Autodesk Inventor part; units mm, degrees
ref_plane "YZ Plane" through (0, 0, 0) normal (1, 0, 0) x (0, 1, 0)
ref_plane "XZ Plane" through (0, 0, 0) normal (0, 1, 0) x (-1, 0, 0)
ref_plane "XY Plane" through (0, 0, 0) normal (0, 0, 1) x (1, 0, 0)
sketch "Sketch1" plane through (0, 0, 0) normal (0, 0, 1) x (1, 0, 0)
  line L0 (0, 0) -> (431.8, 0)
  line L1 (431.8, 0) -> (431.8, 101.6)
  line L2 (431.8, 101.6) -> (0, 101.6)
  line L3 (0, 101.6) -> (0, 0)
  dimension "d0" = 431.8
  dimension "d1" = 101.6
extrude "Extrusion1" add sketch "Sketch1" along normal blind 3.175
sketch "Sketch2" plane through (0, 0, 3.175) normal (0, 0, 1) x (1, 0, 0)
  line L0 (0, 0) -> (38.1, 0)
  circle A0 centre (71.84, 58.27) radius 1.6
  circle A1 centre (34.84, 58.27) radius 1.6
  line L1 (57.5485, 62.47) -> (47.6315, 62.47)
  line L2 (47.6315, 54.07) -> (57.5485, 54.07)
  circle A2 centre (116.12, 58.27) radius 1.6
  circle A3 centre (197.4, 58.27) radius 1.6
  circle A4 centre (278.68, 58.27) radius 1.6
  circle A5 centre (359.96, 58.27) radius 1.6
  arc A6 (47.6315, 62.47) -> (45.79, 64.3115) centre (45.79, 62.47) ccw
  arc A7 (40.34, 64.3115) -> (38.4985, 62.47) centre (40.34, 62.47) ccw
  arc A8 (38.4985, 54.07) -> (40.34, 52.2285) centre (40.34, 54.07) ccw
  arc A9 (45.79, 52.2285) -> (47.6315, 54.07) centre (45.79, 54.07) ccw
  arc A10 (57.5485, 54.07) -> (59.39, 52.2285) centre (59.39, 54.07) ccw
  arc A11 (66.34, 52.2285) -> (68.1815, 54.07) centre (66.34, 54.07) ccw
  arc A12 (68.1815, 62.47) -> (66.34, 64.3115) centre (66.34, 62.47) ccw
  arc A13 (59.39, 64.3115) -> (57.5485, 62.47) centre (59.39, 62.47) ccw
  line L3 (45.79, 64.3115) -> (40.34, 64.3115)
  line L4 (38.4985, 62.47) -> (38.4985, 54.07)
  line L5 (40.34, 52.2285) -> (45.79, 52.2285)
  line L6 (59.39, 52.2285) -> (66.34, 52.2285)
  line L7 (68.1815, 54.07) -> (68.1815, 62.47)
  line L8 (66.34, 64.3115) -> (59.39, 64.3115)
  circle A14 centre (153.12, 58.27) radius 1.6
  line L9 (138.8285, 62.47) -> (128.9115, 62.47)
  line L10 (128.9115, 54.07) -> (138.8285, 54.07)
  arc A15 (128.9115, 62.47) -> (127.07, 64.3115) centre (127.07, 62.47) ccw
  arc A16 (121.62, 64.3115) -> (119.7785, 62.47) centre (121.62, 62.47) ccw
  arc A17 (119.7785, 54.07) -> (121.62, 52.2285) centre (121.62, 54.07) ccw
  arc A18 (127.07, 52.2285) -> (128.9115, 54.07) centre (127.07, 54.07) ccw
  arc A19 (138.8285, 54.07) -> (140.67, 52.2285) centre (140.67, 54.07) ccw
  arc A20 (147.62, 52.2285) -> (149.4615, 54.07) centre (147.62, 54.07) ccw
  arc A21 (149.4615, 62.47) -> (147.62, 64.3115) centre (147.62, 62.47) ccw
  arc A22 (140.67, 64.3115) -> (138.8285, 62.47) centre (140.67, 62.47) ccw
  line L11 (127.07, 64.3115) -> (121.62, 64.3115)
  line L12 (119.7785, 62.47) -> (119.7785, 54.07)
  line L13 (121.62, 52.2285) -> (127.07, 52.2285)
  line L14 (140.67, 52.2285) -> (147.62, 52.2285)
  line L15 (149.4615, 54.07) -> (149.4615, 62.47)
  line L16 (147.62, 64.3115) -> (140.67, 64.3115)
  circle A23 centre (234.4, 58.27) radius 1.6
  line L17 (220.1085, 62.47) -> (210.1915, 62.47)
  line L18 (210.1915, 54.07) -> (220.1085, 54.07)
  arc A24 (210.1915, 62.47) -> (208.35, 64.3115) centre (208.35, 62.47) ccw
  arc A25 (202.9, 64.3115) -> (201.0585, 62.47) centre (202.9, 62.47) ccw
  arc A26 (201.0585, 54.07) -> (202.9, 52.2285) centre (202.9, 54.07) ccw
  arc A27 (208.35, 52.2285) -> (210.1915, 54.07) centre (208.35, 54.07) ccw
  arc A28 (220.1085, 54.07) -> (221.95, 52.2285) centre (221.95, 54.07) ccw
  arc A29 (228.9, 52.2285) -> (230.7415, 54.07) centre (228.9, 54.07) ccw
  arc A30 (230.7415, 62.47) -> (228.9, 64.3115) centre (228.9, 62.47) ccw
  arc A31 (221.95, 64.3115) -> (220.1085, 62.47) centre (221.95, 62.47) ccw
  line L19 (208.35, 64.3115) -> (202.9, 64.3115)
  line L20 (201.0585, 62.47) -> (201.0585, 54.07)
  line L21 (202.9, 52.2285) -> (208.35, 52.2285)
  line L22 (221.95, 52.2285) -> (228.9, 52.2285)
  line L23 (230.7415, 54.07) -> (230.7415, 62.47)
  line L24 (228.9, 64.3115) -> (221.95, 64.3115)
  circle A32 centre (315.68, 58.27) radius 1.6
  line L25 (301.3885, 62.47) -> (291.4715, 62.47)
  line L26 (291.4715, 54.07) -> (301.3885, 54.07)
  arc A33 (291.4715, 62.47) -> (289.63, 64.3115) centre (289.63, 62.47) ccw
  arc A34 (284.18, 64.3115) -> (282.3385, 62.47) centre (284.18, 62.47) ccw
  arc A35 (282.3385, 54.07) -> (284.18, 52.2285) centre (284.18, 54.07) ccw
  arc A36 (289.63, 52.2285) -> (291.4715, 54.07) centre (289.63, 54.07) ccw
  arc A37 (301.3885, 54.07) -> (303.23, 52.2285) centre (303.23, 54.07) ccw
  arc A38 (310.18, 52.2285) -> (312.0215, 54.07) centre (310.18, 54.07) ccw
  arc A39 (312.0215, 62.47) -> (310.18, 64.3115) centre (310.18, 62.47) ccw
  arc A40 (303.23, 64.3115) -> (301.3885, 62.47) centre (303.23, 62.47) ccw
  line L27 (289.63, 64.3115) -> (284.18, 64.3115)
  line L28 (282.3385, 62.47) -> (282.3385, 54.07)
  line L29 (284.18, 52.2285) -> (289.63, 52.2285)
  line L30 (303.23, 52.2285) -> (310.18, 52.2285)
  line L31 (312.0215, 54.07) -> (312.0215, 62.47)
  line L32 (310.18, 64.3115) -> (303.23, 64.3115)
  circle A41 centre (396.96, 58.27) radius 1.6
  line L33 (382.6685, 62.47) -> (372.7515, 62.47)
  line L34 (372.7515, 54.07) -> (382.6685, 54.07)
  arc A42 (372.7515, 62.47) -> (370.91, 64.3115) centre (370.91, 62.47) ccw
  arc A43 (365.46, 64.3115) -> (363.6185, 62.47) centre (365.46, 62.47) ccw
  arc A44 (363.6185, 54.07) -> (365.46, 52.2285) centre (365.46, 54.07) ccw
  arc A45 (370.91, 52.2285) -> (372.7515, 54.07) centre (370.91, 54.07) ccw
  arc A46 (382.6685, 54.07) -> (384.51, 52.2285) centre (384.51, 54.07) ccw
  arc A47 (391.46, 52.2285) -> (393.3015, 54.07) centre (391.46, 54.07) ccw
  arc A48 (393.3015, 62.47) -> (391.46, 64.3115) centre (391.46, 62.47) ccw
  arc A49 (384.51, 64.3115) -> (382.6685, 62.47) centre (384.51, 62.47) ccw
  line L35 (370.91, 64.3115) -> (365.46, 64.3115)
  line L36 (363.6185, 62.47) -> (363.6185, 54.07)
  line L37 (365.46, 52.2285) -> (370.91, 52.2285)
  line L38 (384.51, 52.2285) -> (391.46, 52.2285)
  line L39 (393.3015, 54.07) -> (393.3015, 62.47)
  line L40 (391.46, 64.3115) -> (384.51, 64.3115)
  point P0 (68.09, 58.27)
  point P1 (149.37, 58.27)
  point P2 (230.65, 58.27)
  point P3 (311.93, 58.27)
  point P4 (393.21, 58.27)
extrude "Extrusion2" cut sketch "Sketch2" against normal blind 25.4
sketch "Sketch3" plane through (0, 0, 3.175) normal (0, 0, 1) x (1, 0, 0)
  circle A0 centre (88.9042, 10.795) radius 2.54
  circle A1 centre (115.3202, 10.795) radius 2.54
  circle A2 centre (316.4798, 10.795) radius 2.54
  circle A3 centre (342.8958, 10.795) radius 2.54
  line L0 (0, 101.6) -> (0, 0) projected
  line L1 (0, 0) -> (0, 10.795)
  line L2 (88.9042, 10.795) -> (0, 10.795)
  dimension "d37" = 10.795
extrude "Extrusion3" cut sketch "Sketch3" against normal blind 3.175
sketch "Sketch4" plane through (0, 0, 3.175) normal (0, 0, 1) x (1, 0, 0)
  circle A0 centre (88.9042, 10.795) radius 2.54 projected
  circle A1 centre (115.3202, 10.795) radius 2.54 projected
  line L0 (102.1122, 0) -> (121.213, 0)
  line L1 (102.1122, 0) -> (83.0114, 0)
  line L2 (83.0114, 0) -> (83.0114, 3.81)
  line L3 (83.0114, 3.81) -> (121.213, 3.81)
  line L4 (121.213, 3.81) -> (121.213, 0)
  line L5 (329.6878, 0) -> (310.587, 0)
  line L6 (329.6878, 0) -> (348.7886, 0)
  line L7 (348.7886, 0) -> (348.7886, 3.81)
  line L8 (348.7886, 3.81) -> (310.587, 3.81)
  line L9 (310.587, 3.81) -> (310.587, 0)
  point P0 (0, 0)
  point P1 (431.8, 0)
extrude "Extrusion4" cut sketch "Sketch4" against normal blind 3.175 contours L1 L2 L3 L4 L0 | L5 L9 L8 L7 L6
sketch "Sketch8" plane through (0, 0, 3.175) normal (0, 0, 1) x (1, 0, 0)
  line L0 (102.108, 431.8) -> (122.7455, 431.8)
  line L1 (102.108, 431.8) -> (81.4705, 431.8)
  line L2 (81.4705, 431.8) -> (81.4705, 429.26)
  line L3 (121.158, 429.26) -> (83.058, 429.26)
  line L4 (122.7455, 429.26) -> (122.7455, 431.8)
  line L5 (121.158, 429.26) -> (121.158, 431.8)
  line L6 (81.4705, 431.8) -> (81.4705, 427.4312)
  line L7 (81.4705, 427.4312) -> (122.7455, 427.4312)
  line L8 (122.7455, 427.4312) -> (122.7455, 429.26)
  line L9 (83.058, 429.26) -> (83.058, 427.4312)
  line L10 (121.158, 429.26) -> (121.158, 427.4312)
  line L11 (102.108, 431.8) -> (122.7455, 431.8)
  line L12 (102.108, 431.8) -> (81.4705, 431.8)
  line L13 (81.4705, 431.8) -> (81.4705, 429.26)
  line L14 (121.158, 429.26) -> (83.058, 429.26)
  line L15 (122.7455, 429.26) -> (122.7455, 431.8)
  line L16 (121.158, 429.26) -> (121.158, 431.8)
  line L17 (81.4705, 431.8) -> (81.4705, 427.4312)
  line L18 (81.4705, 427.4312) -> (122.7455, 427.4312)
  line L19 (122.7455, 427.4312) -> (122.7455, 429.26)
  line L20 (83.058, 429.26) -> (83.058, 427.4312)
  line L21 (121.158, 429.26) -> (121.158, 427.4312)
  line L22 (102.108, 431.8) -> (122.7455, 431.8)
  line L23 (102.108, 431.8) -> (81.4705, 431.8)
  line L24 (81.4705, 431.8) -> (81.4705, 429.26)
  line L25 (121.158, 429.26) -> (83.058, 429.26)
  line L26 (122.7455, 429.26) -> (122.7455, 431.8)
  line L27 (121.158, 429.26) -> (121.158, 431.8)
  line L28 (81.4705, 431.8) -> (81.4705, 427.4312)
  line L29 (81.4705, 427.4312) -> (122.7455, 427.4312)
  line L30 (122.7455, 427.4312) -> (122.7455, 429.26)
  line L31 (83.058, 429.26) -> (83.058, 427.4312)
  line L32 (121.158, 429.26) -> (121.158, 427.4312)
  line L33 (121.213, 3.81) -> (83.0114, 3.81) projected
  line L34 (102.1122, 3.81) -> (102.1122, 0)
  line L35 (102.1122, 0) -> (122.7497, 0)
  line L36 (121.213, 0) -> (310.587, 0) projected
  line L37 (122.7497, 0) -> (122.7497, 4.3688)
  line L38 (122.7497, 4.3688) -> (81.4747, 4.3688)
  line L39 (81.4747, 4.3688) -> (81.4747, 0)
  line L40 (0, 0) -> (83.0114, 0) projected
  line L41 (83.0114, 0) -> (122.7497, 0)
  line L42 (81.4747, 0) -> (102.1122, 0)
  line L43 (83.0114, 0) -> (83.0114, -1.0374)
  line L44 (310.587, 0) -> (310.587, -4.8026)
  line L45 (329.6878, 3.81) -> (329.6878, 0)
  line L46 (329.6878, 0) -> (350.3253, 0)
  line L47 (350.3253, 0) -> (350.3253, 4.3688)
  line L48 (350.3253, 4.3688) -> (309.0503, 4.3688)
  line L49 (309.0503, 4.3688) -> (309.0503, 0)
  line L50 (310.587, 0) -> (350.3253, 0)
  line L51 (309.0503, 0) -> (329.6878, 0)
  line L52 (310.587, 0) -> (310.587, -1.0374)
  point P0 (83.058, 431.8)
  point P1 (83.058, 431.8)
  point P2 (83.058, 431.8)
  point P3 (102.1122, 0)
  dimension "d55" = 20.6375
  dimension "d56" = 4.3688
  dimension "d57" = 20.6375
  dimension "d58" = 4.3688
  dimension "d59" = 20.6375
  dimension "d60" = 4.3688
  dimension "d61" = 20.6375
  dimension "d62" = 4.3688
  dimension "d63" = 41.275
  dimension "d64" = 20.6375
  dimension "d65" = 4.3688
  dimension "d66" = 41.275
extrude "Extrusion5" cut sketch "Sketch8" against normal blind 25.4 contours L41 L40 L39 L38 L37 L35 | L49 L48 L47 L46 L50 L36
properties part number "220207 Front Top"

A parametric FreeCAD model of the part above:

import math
import FreeCAD as App
import Part
import Sketcher
from FreeCAD import Vector
Q = App.Units.Quantity

doc = App.newDocument("Part")
body = doc.addObject("PartDesign::Body", "Body")

# Sketch on XY plane
sketch1 = body.newObject("Sketcher::SketchObject", "Sketch")
sketch1.AttachmentSupport = (doc.getObject("XY_Plane"), [""])
sketch1.MapMode = "FlatFace"
sketch1.addGeometry([
    Part.LineSegment(Vector(0, 102, 0), Vector(0, 0, 0)),
    Part.LineSegment(Vector(0, 0, 0), Vector(432, 0, 0)),
    Part.LineSegment(Vector(432, 0, 0), Vector(432, 102, 0)),
    Part.LineSegment(Vector(432, 102, 0), Vector(0, 102, 0)),
], False)
sketch1.addConstraint([
    Sketcher.Constraint("Coincident", 0, 2, 1, 1),
    Sketcher.Constraint("Coincident", 1, 2, 2, 1),
    Sketcher.Constraint("Coincident", 2, 2, 3, 1),
    Sketcher.Constraint("Coincident", 3, 2, 0, 1),
    Sketcher.Constraint("Vertical", 0),
    Sketcher.Constraint("Horizontal", 1),
    Sketcher.Constraint("Vertical", 2),
    Sketcher.Constraint("Horizontal", 3),
    Sketcher.Constraint("Coincident", 0, 2, -1, 1),
    Sketcher.Constraint("DistanceX", 1, 1, 1, 2, Q("17 in")),
    Sketcher.Constraint("DistanceY", 0, 2, 0, 1, Q("4 in")),
])
pad1 = body.newObject("PartDesign::Pad", "Pad")
pad1.Profile = sketch1
pad1.Length = Q("0.125 in")

# Sketch on XY plane
sketch2 = body.newObject("Sketcher::SketchObject", "Sketch001")
sketch2.AttachmentSupport = (doc.getObject("XY_Plane"), [""])
sketch2.MapMode = "FlatFace"
sketch2.AttachmentOffset = App.Placement(Vector(0, 0, 0.125 * 25.4), App.Rotation())
sketch2.addGeometry([
    Part.Circle(Vector(71.8, 58.3, 0), Vector(0, 0, 1), 1.6),  # 0
    Part.Circle(Vector(34.8, 58.3, 0), Vector(0, 0, 1), 1.6),  # 1
    Part.ArcOfCircle(Part.Circle(Vector(59.4, 62.5, 0), Vector(0, 0, 1), 1.8), math.radians(90), math.radians(180)),  # 2
    Part.LineSegment(Vector(57.5, 62.5, 0), Vector(47.6, 62.5, 0)),  # 3
    Part.ArcOfCircle(Part.Circle(Vector(45.8, 62.5, 0), Vector(0, 0, 1), 1.8), math.radians(0), math.radians(90)),  # 4
    Part.LineSegment(Vector(45.8, 64.3, 0), Vector(40.3, 64.3, 0)),  # 5
    Part.ArcOfCircle(Part.Circle(Vector(40.3, 62.5, 0), Vector(0, 0, 1), 1.8), math.radians(90), math.radians(180)),  # 6
    Part.LineSegment(Vector(38.5, 62.5, 0), Vector(38.5, 54.1, 0)),  # 7
    Part.ArcOfCircle(Part.Circle(Vector(40.3, 54.1, 0), Vector(0, 0, 1), 1.8), math.radians(180), math.radians(270)),  # 8
    Part.LineSegment(Vector(40.3, 52.2, 0), Vector(45.8, 52.2, 0)),  # 9
    Part.ArcOfCircle(Part.Circle(Vector(45.8, 54.1, 0), Vector(0, 0, 1), 1.8), math.radians(-90), math.radians(0)),  # 10
    Part.LineSegment(Vector(47.6, 54.1, 0), Vector(57.5, 54.1, 0)),  # 11
    Part.ArcOfCircle(Part.Circle(Vector(59.4, 54.1, 0), Vector(0, 0, 1), 1.8), math.radians(180), math.radians(270)),  # 12
    Part.LineSegment(Vector(59.4, 52.2, 0), Vector(66.3, 52.2, 0)),  # 13
    Part.ArcOfCircle(Part.Circle(Vector(66.3, 54.1, 0), Vector(0, 0, 1), 1.8), math.radians(-90), math.radians(0)),  # 14
    Part.LineSegment(Vector(68.2, 54.1, 0), Vector(68.2, 62.5, 0)),  # 15
    Part.ArcOfCircle(Part.Circle(Vector(66.3, 62.5, 0), Vector(0, 0, 1), 1.8), math.radians(0), math.radians(90)),  # 16
    Part.LineSegment(Vector(66.3, 64.3, 0), Vector(59.4, 64.3, 0)),  # 17
    Part.Circle(Vector(116.1, 58.3, 0), Vector(0, 0, 1), 1.6),  # 18
    Part.Circle(Vector(197.4, 58.3, 0), Vector(0, 0, 1), 1.6),  # 19
    Part.Circle(Vector(278.7, 58.3, 0), Vector(0, 0, 1), 1.6),  # 20
    Part.Circle(Vector(360, 58.3, 0), Vector(0, 0, 1), 1.6),  # 21
    Part.Circle(Vector(153.1, 58.3, 0), Vector(0, 0, 1), 1.6),  # 22
    Part.ArcOfCircle(Part.Circle(Vector(140.7, 62.5, 0), Vector(0, 0, 1), 1.8), math.radians(90), math.radians(180)),  # 23
    Part.LineSegment(Vector(138.8, 62.5, 0), Vector(128.9, 62.5, 0)),  # 24
    Part.ArcOfCircle(Part.Circle(Vector(127.1, 62.5, 0), Vector(0, 0, 1), 1.8), math.radians(0), math.radians(90)),  # 25
    Part.LineSegment(Vector(127.1, 64.3, 0), Vector(121.6, 64.3, 0)),  # 26
    Part.ArcOfCircle(Part.Circle(Vector(121.6, 62.5, 0), Vector(0, 0, 1), 1.8), math.radians(90), math.radians(180)),  # 27
    Part.LineSegment(Vector(119.8, 62.5, 0), Vector(119.8, 54.1, 0)),  # 28
    Part.ArcOfCircle(Part.Circle(Vector(121.6, 54.1, 0), Vector(0, 0, 1), 1.8), math.radians(180), math.radians(270)),  # 29
    Part.LineSegment(Vector(121.6, 52.2, 0), Vector(127.1, 52.2, 0)),  # 30
    Part.ArcOfCircle(Part.Circle(Vector(127.1, 54.1, 0), Vector(0, 0, 1), 1.8), math.radians(-90), math.radians(0)),  # 31
    Part.LineSegment(Vector(128.9, 54.1, 0), Vector(138.8, 54.1, 0)),  # 32
    Part.ArcOfCircle(Part.Circle(Vector(140.7, 54.1, 0), Vector(0, 0, 1), 1.8), math.radians(180), math.radians(270)),  # 33
    Part.LineSegment(Vector(140.7, 52.2, 0), Vector(147.6, 52.2, 0)),  # 34
    Part.ArcOfCircle(Part.Circle(Vector(147.6, 54.1, 0), Vector(0, 0, 1), 1.8), math.radians(-90), math.radians(0)),  # 35
    Part.LineSegment(Vector(149.5, 54.1, 0), Vector(149.5, 62.5, 0)),  # 36
    Part.ArcOfCircle(Part.Circle(Vector(147.6, 62.5, 0), Vector(0, 0, 1), 1.8), math.radians(0), math.radians(90)),  # 37
    Part.LineSegment(Vector(147.6, 64.3, 0), Vector(140.7, 64.3, 0)),  # 38
    Part.Circle(Vector(234.4, 58.3, 0), Vector(0, 0, 1), 1.6),  # 39
    Part.ArcOfCircle(Part.Circle(Vector(221.9, 62.5, 0), Vector(0, 0, 1), 1.8), math.radians(90), math.radians(180)),  # 40
    Part.LineSegment(Vector(220.1, 62.5, 0), Vector(210.2, 62.5, 0)),  # 41
    Part.ArcOfCircle(Part.Circle(Vector(208.3, 62.5, 0), Vector(0, 0, 1), 1.8), math.radians(0), math.radians(90)),  # 42
    Part.LineSegment(Vector(208.3, 64.3, 0), Vector(202.9, 64.3, 0)),  # 43
    Part.ArcOfCircle(Part.Circle(Vector(202.9, 62.5, 0), Vector(0, 0, 1), 1.8), math.radians(90), math.radians(180)),  # 44
    Part.LineSegment(Vector(201.1, 62.5, 0), Vector(201.1, 54.1, 0)),  # 45
    Part.ArcOfCircle(Part.Circle(Vector(202.9, 54.1, 0), Vector(0, 0, 1), 1.8), math.radians(180), math.radians(270)),  # 46
    Part.LineSegment(Vector(202.9, 52.2, 0), Vector(208.3, 52.2, 0)),  # 47
    Part.ArcOfCircle(Part.Circle(Vector(208.3, 54.1, 0), Vector(0, 0, 1), 1.8), math.radians(-90), math.radians(0)),  # 48
    Part.LineSegment(Vector(210.2, 54.1, 0), Vector(220.1, 54.1, 0)),  # 49
    Part.ArcOfCircle(Part.Circle(Vector(221.9, 54.1, 0), Vector(0, 0, 1), 1.8), math.radians(180), math.radians(270)),  # 50
    Part.LineSegment(Vector(221.9, 52.2, 0), Vector(228.9, 52.2, 0)),  # 51
    Part.ArcOfCircle(Part.Circle(Vector(228.9, 54.1, 0), Vector(0, 0, 1), 1.8), math.radians(-90), math.radians(0)),  # 52
    Part.LineSegment(Vector(230.7, 54.1, 0), Vector(230.7, 62.5, 0)),  # 53
    Part.ArcOfCircle(Part.Circle(Vector(228.9, 62.5, 0), Vector(0, 0, 1), 1.8), math.radians(0), math.radians(90)),  # 54
    Part.LineSegment(Vector(228.9, 64.3, 0), Vector(221.9, 64.3, 0)),  # 55
    Part.Circle(Vector(315.7, 58.3, 0), Vector(0, 0, 1), 1.6),  # 56
    Part.ArcOfCircle(Part.Circle(Vector(303.2, 62.5, 0), Vector(0, 0, 1), 1.8), math.radians(90), math.radians(180)),  # 57
    Part.LineSegment(Vector(301.4, 62.5, 0), Vector(291.5, 62.5, 0)),  # 58
    Part.ArcOfCircle(Part.Circle(Vector(289.6, 62.5, 0), Vector(0, 0, 1), 1.8), math.radians(0), math.radians(90)),  # 59
    Part.LineSegment(Vector(289.6, 64.3, 0), Vector(284.2, 64.3, 0)),  # 60
    Part.ArcOfCircle(Part.Circle(Vector(284.2, 62.5, 0), Vector(0, 0, 1), 1.8), math.radians(90), math.radians(180)),  # 61
    Part.LineSegment(Vector(282.3, 62.5, 0), Vector(282.3, 54.1, 0)),  # 62
    Part.ArcOfCircle(Part.Circle(Vector(284.2, 54.1, 0), Vector(0, 0, 1), 1.8), math.radians(180), math.radians(270)),  # 63
    Part.LineSegment(Vector(284.2, 52.2, 0), Vector(289.6, 52.2, 0)),  # 64
    Part.ArcOfCircle(Part.Circle(Vector(289.6, 54.1, 0), Vector(0, 0, 1), 1.8), math.radians(-90), math.radians(0)),  # 65
    Part.LineSegment(Vector(291.5, 54.1, 0), Vector(301.4, 54.1, 0)),  # 66
    Part.ArcOfCircle(Part.Circle(Vector(303.2, 54.1, 0), Vector(0, 0, 1), 1.8), math.radians(180), math.radians(270)),  # 67
    Part.LineSegment(Vector(303.2, 52.2, 0), Vector(310.2, 52.2, 0)),  # 68
    Part.ArcOfCircle(Part.Circle(Vector(310.2, 54.1, 0), Vector(0, 0, 1), 1.8), math.radians(-90), math.radians(0)),  # 69
    Part.LineSegment(Vector(312, 54.1, 0), Vector(312, 62.5, 0)),  # 70
    Part.ArcOfCircle(Part.Circle(Vector(310.2, 62.5, 0), Vector(0, 0, 1), 1.8), math.radians(0), math.radians(90)),  # 71
    Part.LineSegment(Vector(310.2, 64.3, 0), Vector(303.2, 64.3, 0)),  # 72
    Part.Circle(Vector(397, 58.3, 0), Vector(0, 0, 1), 1.6),  # 73
    Part.ArcOfCircle(Part.Circle(Vector(384.5, 62.5, 0), Vector(0, 0, 1), 1.8), math.radians(90), math.radians(180)),  # 74
    Part.LineSegment(Vector(382.7, 62.5, 0), Vector(372.8, 62.5, 0)),  # 75
    Part.ArcOfCircle(Part.Circle(Vector(370.9, 62.5, 0), Vector(0, 0, 1), 1.8), math.radians(0), math.radians(90)),  # 76
    Part.LineSegment(Vector(370.9, 64.3, 0), Vector(365.5, 64.3, 0)),  # 77
    Part.ArcOfCircle(Part.Circle(Vector(365.5, 62.5, 0), Vector(0, 0, 1), 1.8), math.radians(90), math.radians(180)),  # 78
    Part.LineSegment(Vector(363.6, 62.5, 0), Vector(363.6, 54.1, 0)),  # 79
    Part.ArcOfCircle(Part.Circle(Vector(365.5, 54.1, 0), Vector(0, 0, 1), 1.8), math.radians(180), math.radians(270)),  # 80
    Part.LineSegment(Vector(365.5, 52.2, 0), Vector(370.9, 52.2, 0)),  # 81
    Part.ArcOfCircle(Part.Circle(Vector(370.9, 54.1, 0), Vector(0, 0, 1), 1.8), math.radians(-90), math.radians(0)),  # 82
    Part.LineSegment(Vector(372.8, 54.1, 0), Vector(382.7, 54.1, 0)),  # 83
    Part.ArcOfCircle(Part.Circle(Vector(384.5, 54.1, 0), Vector(0, 0, 1), 1.8), math.radians(180), math.radians(270)),  # 84
    Part.LineSegment(Vector(384.5, 52.2, 0), Vector(391.5, 52.2, 0)),  # 85
    Part.ArcOfCircle(Part.Circle(Vector(391.5, 54.1, 0), Vector(0, 0, 1), 1.8), math.radians(-90), math.radians(0)),  # 86
    Part.LineSegment(Vector(393.3, 54.1, 0), Vector(393.3, 62.5, 0)),  # 87
    Part.ArcOfCircle(Part.Circle(Vector(391.5, 62.5, 0), Vector(0, 0, 1), 1.8), math.radians(0), math.radians(90)),  # 88
    Part.LineSegment(Vector(391.5, 64.3, 0), Vector(384.5, 64.3, 0)),  # 89
], False)
sketch2.addConstraint([
    Sketcher.Constraint("Coincident", 2, 2, 3, 1),
    Sketcher.Constraint("Coincident", 3, 2, 4, 1),
    Sketcher.Constraint("Tangent", 4, 2, 5, 1),
    Sketcher.Constraint("Tangent", 5, 2, 6, 1),
    Sketcher.Constraint("Tangent", 6, 2, 7, 1),
    Sketcher.Constraint("Tangent", 7, 2, 8, 1),
    Sketcher.Constraint("Tangent", 8, 2, 9, 1),
    Sketcher.Constraint("Tangent", 9, 2, 10, 1),
    Sketcher.Constraint("Coincident", 10, 2, 11, 1),
    Sketcher.Constraint("Coincident", 11, 2, 12, 1),
    Sketcher.Constraint("Tangent", 12, 2, 13, 1),
    Sketcher.Constraint("Tangent", 13, 2, 14, 1),
    Sketcher.Constraint("Tangent", 14, 2, 15, 1),
    Sketcher.Constraint("Tangent", 15, 2, 16, 1),
    Sketcher.Constraint("Tangent", 16, 2, 17, 1),
    Sketcher.Constraint("Tangent", 17, 2, 2, 1),
    Sketcher.Constraint("Coincident", 23, 2, 24, 1),
    Sketcher.Constraint("Coincident", 24, 2, 25, 1),
    Sketcher.Constraint("Tangent", 25, 2, 26, 1),
    Sketcher.Constraint("Tangent", 26, 2, 27, 1),
    Sketcher.Constraint("Tangent", 27, 2, 28, 1),
    Sketcher.Constraint("Tangent", 28, 2, 29, 1),
    Sketcher.Constraint("Tangent", 29, 2, 30, 1),
    Sketcher.Constraint("Tangent", 30, 2, 31, 1),
    Sketcher.Constraint("Coincident", 31, 2, 32, 1),
    Sketcher.Constraint("Coincident", 32, 2, 33, 1),
    Sketcher.Constraint("Tangent", 33, 2, 34, 1),
    Sketcher.Constraint("Tangent", 34, 2, 35, 1),
    Sketcher.Constraint("Tangent", 35, 2, 36, 1),
    Sketcher.Constraint("Tangent", 36, 2, 37, 1),
    Sketcher.Constraint("Tangent", 37, 2, 38, 1),
    Sketcher.Constraint("Tangent", 38, 2, 23, 1),
    Sketcher.Constraint("Coincident", 40, 2, 41, 1),
    Sketcher.Constraint("Coincident", 41, 2, 42, 1),
    Sketcher.Constraint("Tangent", 42, 2, 43, 1),
    Sketcher.Constraint("Tangent", 43, 2, 44, 1),
    Sketcher.Constraint("Tangent", 44, 2, 45, 1),
    Sketcher.Constraint("Tangent", 45, 2, 46, 1),
    Sketcher.Constraint("Tangent", 46, 2, 47, 1),
    Sketcher.Constraint("Tangent", 47, 2, 48, 1),
    Sketcher.Constraint("Coincident", 48, 2, 49, 1),
    Sketcher.Constraint("Coincident", 49, 2, 50, 1),
    Sketcher.Constraint("Tangent", 50, 2, 51, 1),
    Sketcher.Constraint("Tangent", 51, 2, 52, 1),
    Sketcher.Constraint("Tangent", 52, 2, 53, 1),
    Sketcher.Constraint("Tangent", 53, 2, 54, 1),
    Sketcher.Constraint("Tangent", 54, 2, 55, 1),
    Sketcher.Constraint("Tangent", 55, 2, 40, 1),
    Sketcher.Constraint("Coincident", 57, 2, 58, 1),
    Sketcher.Constraint("Coincident", 58, 2, 59, 1),
    Sketcher.Constraint("Tangent", 59, 2, 60, 1),
    Sketcher.Constraint("Tangent", 60, 2, 61, 1),
    Sketcher.Constraint("Tangent", 61, 2, 62, 1),
    Sketcher.Constraint("Tangent", 62, 2, 63, 1),
    Sketcher.Constraint("Tangent", 63, 2, 64, 1),
    Sketcher.Constraint("Tangent", 64, 2, 65, 1),
    Sketcher.Constraint("Coincident", 65, 2, 66, 1),
    Sketcher.Constraint("Coincident", 66, 2, 67, 1),
    Sketcher.Constraint("Tangent", 67, 2, 68, 1),
    Sketcher.Constraint("Tangent", 68, 2, 69, 1),
    Sketcher.Constraint("Tangent", 69, 2, 70, 1),
    Sketcher.Constraint("Tangent", 70, 2, 71, 1),
    Sketcher.Constraint("Tangent", 71, 2, 72, 1),
    Sketcher.Constraint("Tangent", 72, 2, 57, 1),
    Sketcher.Constraint("Coincident", 74, 2, 75, 1),
    Sketcher.Constraint("Coincident", 75, 2, 76, 1),
    Sketcher.Constraint("Tangent", 76, 2, 77, 1),
    Sketcher.Constraint("Tangent", 77, 2, 78, 1),
    Sketcher.Constraint("Tangent", 78, 2, 79, 1),
    Sketcher.Constraint("Tangent", 79, 2, 80, 1),
    Sketcher.Constraint("Tangent", 80, 2, 81, 1),
    Sketcher.Constraint("Tangent", 81, 2, 82, 1),
    Sketcher.Constraint("Coincident", 82, 2, 83, 1),
    Sketcher.Constraint("Coincident", 83, 2, 84, 1),
    Sketcher.Constraint("Tangent", 84, 2, 85, 1),
    Sketcher.Constraint("Tangent", 85, 2, 86, 1),
    Sketcher.Constraint("Tangent", 86, 2, 87, 1),
    Sketcher.Constraint("Tangent", 87, 2, 88, 1),
    Sketcher.Constraint("Tangent", 88, 2, 89, 1),
    Sketcher.Constraint("Tangent", 89, 2, 74, 1),
    Sketcher.Constraint("Horizontal", 3),
    Sketcher.Constraint("Horizontal", 5),
    Sketcher.Constraint("Vertical", 7),
    Sketcher.Constraint("Horizontal", 9),
    Sketcher.Constraint("Horizontal", 11),
    Sketcher.Constraint("Horizontal", 13),
    Sketcher.Constraint("Vertical", 15),
    Sketcher.Constraint("Horizontal", 17),
    Sketcher.Constraint("Horizontal", 24),
    Sketcher.Constraint("Horizontal", 26),
    Sketcher.Constraint("Vertical", 28),
    Sketcher.Constraint("Horizontal", 30),
    Sketcher.Constraint("Horizontal", 32),
    Sketcher.Constraint("Horizontal", 34),
    Sketcher.Constraint("Vertical", 36),
    Sketcher.Constraint("Horizontal", 38),
    Sketcher.Constraint("Horizontal", 41),
    Sketcher.Constraint("Horizontal", 43),
    Sketcher.Constraint("Vertical", 45),
    Sketcher.Constraint("Horizontal", 47),
    Sketcher.Constraint("Horizontal", 49),
    Sketcher.Constraint("Horizontal", 51),
    Sketcher.Constraint("Vertical", 53),
    Sketcher.Constraint("Horizontal", 55),
    Sketcher.Constraint("Horizontal", 58),
    Sketcher.Constraint("Horizontal", 60),
    Sketcher.Constraint("Vertical", 62),
    Sketcher.Constraint("Horizontal", 64),
    Sketcher.Constraint("Horizontal", 66),
    Sketcher.Constraint("Horizontal", 68),
    Sketcher.Constraint("Vertical", 70),
    Sketcher.Constraint("Horizontal", 72),
    Sketcher.Constraint("Horizontal", 75),
    Sketcher.Constraint("Horizontal", 77),
    Sketcher.Constraint("Vertical", 79),
    Sketcher.Constraint("Horizontal", 81),
    Sketcher.Constraint("Horizontal", 83),
    Sketcher.Constraint("Horizontal", 85),
    Sketcher.Constraint("Vertical", 87),
    Sketcher.Constraint("Horizontal", 89),
    Sketcher.Constraint("Equal", 0, 1),
    Sketcher.Constraint("Equal", 2, 4),
    Sketcher.Constraint("Equal", 4, 6),
    Sketcher.Constraint("Equal", 6, 8),
    Sketcher.Constraint("Equal", 8, 10),
    Sketcher.Constraint("Equal", 10, 12),
    Sketcher.Constraint("Equal", 12, 14),
    Sketcher.Constraint("Equal", 14, 16),
    Sketcher.Constraint("Equal", 1, 18),
    Sketcher.Constraint("Equal", 18, 19),
    Sketcher.Constraint("Equal", 19, 20),
    Sketcher.Constraint("Equal", 20, 21),
    Sketcher.Constraint("Equal", 21, 22),
    Sketcher.Constraint("Equal", 16, 23),
    Sketcher.Constraint("Equal", 23, 25),
    Sketcher.Constraint("Equal", 25, 27),
    Sketcher.Constraint("Equal", 27, 29),
    Sketcher.Constraint("Equal", 29, 31),
    Sketcher.Constraint("Equal", 31, 33),
    Sketcher.Constraint("Equal", 33, 35),
    Sketcher.Constraint("Equal", 35, 37),
    Sketcher.Constraint("Equal", 22, 39),
    Sketcher.Constraint("Equal", 37, 40),
    Sketcher.Constraint("Equal", 40, 42),
    Sketcher.Constraint("Equal", 42, 44),
    Sketcher.Constraint("Equal", 44, 46),
    Sketcher.Constraint("Equal", 46, 48),
    Sketcher.Constraint("Equal", 48, 50),
    Sketcher.Constraint("Equal", 50, 52),
    Sketcher.Constraint("Equal", 52, 54),
    Sketcher.Constraint("Equal", 39, 56),
    Sketcher.Constraint("Equal", 54, 57),
    Sketcher.Constraint("Equal", 57, 59),
    Sketcher.Constraint("Equal", 59, 61),
    Sketcher.Constraint("Equal", 61, 63),
    Sketcher.Constraint("Equal", 63, 65),
    Sketcher.Constraint("Equal", 65, 67),
    Sketcher.Constraint("Equal", 67, 69),
    Sketcher.Constraint("Equal", 69, 71),
    Sketcher.Constraint("Equal", 56, 73),
    Sketcher.Constraint("Equal", 71, 74),
    Sketcher.Constraint("Equal", 74, 76),
    Sketcher.Constraint("Equal", 76, 78),
    Sketcher.Constraint("Equal", 78, 80),
    Sketcher.Constraint("Equal", 80, 82),
    Sketcher.Constraint("Equal", 82, 84),
    Sketcher.Constraint("Equal", 84, 86),
    Sketcher.Constraint("Equal", 86, 88),
    Sketcher.Constraint("Horizontal", 0, 3, 1, 3),
    Sketcher.Constraint("Horizontal", 2, 3, 4, 3),
    Sketcher.Constraint("Horizontal", 10, 3, 12, 3),
    Sketcher.Constraint("Horizontal", 1, 3, 18, 3),
    Sketcher.Constraint("Horizontal", 18, 3, 19, 3),
    Sketcher.Constraint("Horizontal", 19, 3, 20, 3),
    Sketcher.Constraint("Horizontal", 20, 3, 21, 3),
    Sketcher.Constraint("Horizontal", 21, 3, 22, 3),
    Sketcher.Constraint("Horizontal", 16, 3, 23, 3),
    Sketcher.Constraint("Horizontal", 23, 3, 25, 3),
    Sketcher.Constraint("Horizontal", 14, 3, 29, 3),
    Sketcher.Constraint("Horizontal", 31, 3, 33, 3),
    Sketcher.Constraint("Horizontal", 22, 3, 39, 3),
    Sketcher.Constraint("Horizontal", 37, 3, 40, 3),
    Sketcher.Constraint("Horizontal", 40, 3, 42, 3),
    Sketcher.Constraint("Horizontal", 35, 3, 46, 3),
    Sketcher.Constraint("Horizontal", 48, 3, 50, 3),
    Sketcher.Constraint("Horizontal", 39, 3, 56, 3),
    Sketcher.Constraint("Horizontal", 54, 3, 57, 3),
    Sketcher.Constraint("Horizontal", 57, 3, 59, 3),
    Sketcher.Constraint("Horizontal", 52, 3, 63, 3),
    Sketcher.Constraint("Horizontal", 65, 3, 67, 3),
    Sketcher.Constraint("Horizontal", 56, 3, 73, 3),
    Sketcher.Constraint("Horizontal", 71, 3, 74, 3),
    Sketcher.Constraint("Horizontal", 74, 3, 76, 3),
    Sketcher.Constraint("Horizontal", 69, 3, 80, 3),
    Sketcher.Constraint("Horizontal", 82, 3, 84, 3),
    Sketcher.Constraint("Horizontal", 88, 3, 2, 2),
    Sketcher.Constraint("Horizontal", 7, 2, 10, 2),
    Sketcher.Constraint("Horizontal", 15, 2, 23, 2),
    Sketcher.Constraint("Horizontal", 28, 2, 31, 2),
    Sketcher.Constraint("Horizontal", 36, 2, 40, 2),
    Sketcher.Constraint("Horizontal", 45, 2, 48, 2),
    Sketcher.Constraint("Horizontal", 53, 2, 57, 2),
    Sketcher.Constraint("Horizontal", 62, 2, 65, 2),
    Sketcher.Constraint("Horizontal", 70, 2, 74, 2),
    Sketcher.Constraint("Horizontal", 79, 2, 82, 2),
    Sketcher.Constraint("Vertical", 4, 3, 10, 3),
    Sketcher.Constraint("Vertical", 2, 3, 12, 3),
    Sketcher.Constraint("Vertical", 25, 3, 31, 3),
    Sketcher.Constraint("Vertical", 23, 3, 33, 3),
    Sketcher.Constraint("Vertical", 42, 3, 48, 3),
    Sketcher.Constraint("Vertical", 40, 3, 50, 3),
    Sketcher.Constraint("Vertical", 59, 3, 65, 3),
    Sketcher.Constraint("Vertical", 57, 3, 67, 3),
    Sketcher.Constraint("Vertical", 76, 3, 82, 3),
    Sketcher.Constraint("Vertical", 74, 3, 84, 3),
    Sketcher.Constraint("Equal", 11, 24),
    Sketcher.Constraint("Equal", 9, 26),
    Sketcher.Constraint("Equal", 17, 34),
    Sketcher.Constraint("Equal", 32, 41),
    Sketcher.Constraint("Equal", 30, 43),
    Sketcher.Constraint("Equal", 38, 51),
    Sketcher.Constraint("Equal", 49, 58),
    Sketcher.Constraint("Equal", 47, 60),
    Sketcher.Constraint("Equal", 55, 68),
    Sketcher.Constraint("Equal", 66, 75),
    Sketcher.Constraint("Equal", 64, 77),
    Sketcher.Constraint("Equal", 72, 85),
    Sketcher.Constraint("Radius", 2, Q("0.0725 in")),
    Sketcher.Constraint("Diameter", 0, 3.2),
    Sketcher.Constraint("DistanceY", 7, 2, 7, 1, Q("0.3307 in")),
    Sketcher.Constraint("DistanceX", 3, 2, 3, 1, 9.917),
    Sketcher.Constraint("DistanceX", 5, 2, 5, 1, 5.45),
    Sketcher.Constraint("DistanceX", 13, 1, 13, 2, 6.95),
    Sketcher.Constraint("DistanceY", -1, 1, 0, 3, Q("2.2941 in")),
    Sketcher.Constraint("DistanceX", -1, 1, 2, 3, Q("2.3382 in")),
    Sketcher.Constraint("DistanceX", -1, 1, 23, 3, Q("5.5382 in")),
    Sketcher.Constraint("DistanceX", -1, 1, 40, 3, Q("8.7382 in")),
    Sketcher.Constraint("DistanceX", -1, 1, 57, 3, Q("11.9382 in")),
    Sketcher.Constraint("DistanceX", -1, 1, 74, 3, Q("15.1382 in")),
    Sketcher.Constraint("DistanceX", -1, 1, 0, 3, 71.84),
    Sketcher.Constraint("DistanceX", -1, 1, 1, 3, 34.84),
    Sketcher.Constraint("DistanceY", -1, 1, 2, 3, 62.47),
    Sketcher.Constraint("DistanceX", -1, 1, 18, 3, 116.12),
    Sketcher.Constraint("DistanceX", -1, 1, 19, 3, 197.4),
    Sketcher.Constraint("DistanceX", -1, 1, 20, 3, 278.68),
    Sketcher.Constraint("DistanceX", -1, 1, 21, 3, 359.96),
    Sketcher.Constraint("DistanceX", -1, 1, 22, 3, 153.12),
    Sketcher.Constraint("DistanceX", -1, 1, 39, 3, 234.4),
    Sketcher.Constraint("DistanceX", -1, 1, 56, 3, 315.68),
    Sketcher.Constraint("DistanceX", -1, 1, 73, 3, 396.96),
])
pocket1 = body.newObject("PartDesign::Pocket", "Pocket")
pocket1.Profile = sketch2
pocket1.Length = Q("1 in")

# Sketch on XY plane
sketch3 = body.newObject("Sketcher::SketchObject", "Sketch002")
sketch3.AttachmentSupport = (doc.getObject("XY_Plane"), [""])
sketch3.MapMode = "FlatFace"
sketch3.AttachmentOffset = App.Placement(Vector(0, 0, 0.125 * 25.4), App.Rotation())
sketch3.addGeometry([
    Part.Circle(Vector(88.9, 10.8, 0), Vector(0, 0, 1), 2.5),
    Part.Circle(Vector(115.3, 10.8, 0), Vector(0, 0, 1), 2.5),
    Part.Circle(Vector(316.5, 10.8, 0), Vector(0, 0, 1), 2.5),
    Part.Circle(Vector(342.9, 10.8, 0), Vector(0, 0, 1), 2.5),
], False)
sketch3.addConstraint([
    Sketcher.Constraint("Equal", 0, 1),
    Sketcher.Constraint("Equal", 1, 2),
    Sketcher.Constraint("Equal", 2, 3),
    Sketcher.Constraint("Horizontal", 0, 3, 1, 3),
    Sketcher.Constraint("Horizontal", 1, 3, 2, 3),
    Sketcher.Constraint("Horizontal", 2, 3, 3, 3),
    Sketcher.Constraint("Diameter", 0, Q("0.2 in")),
    Sketcher.Constraint("DistanceY", -1, 1, 0, 3, Q("0.425 in")),
    Sketcher.Constraint("DistanceX", 0, 3, 1, 3, Q("1.04 in")),
    Sketcher.Constraint("DistanceX", 2, 3, 3, 3, Q("1.04 in")),
    Sketcher.Constraint("DistanceX", -1, 1, 0, 3, 88.9042),
    Sketcher.Constraint("DistanceX", -1, 1, 2, 3, 316.4798),
])
pocket2 = body.newObject("PartDesign::Pocket", "Pocket001")
pocket2.Profile = sketch3
pocket2.Length = Q("0.125 in")

# Sketch on XY plane
sketch4 = body.newObject("Sketcher::SketchObject", "Sketch003")
sketch4.AttachmentSupport = (doc.getObject("XY_Plane"), [""])
sketch4.MapMode = "FlatFace"
sketch4.AttachmentOffset = App.Placement(Vector(0, 0, 0.125 * 25.4), App.Rotation())
sketch4.addGeometry([
    Part.LineSegment(Vector(83, 0, 0), Vector(121.2, 0, 0)),  # 0
    Part.LineSegment(Vector(121.2, 0, 0), Vector(121.2, 3.8, 0)),  # 1
    Part.LineSegment(Vector(121.2, 3.8, 0), Vector(83, 3.8, 0)),  # 2
    Part.LineSegment(Vector(83, 3.8, 0), Vector(83, 0, 0)),  # 3
    Part.LineSegment(Vector(310.6, 0, 0), Vector(348.8, 0, 0)),  # 4
    Part.LineSegment(Vector(348.8, 0, 0), Vector(348.8, 3.8, 0)),  # 5
    Part.LineSegment(Vector(348.8, 3.8, 0), Vector(310.6, 3.8, 0)),  # 6
    Part.LineSegment(Vector(310.6, 3.8, 0), Vector(310.6, 0, 0)),  # 7
], False)
sketch4.addConstraint([
    Sketcher.Constraint("Coincident", 0, 2, 1, 1),
    Sketcher.Constraint("Coincident", 1, 2, 2, 1),
    Sketcher.Constraint("Coincident", 2, 2, 3, 1),
    Sketcher.Constraint("Coincident", 3, 2, 0, 1),
    Sketcher.Constraint("Coincident", 4, 2, 5, 1),
    Sketcher.Constraint("Coincident", 5, 2, 6, 1),
    Sketcher.Constraint("Coincident", 6, 2, 7, 1),
    Sketcher.Constraint("Coincident", 7, 2, 4, 1),
    Sketcher.Constraint("Horizontal", 0),
    Sketcher.Constraint("Vertical", 1),
    Sketcher.Constraint("Horizontal", 2),
    Sketcher.Constraint("Vertical", 3),
    Sketcher.Constraint("Horizontal", 4),
    Sketcher.Constraint("Vertical", 5),
    Sketcher.Constraint("Horizontal", 6),
    Sketcher.Constraint("Vertical", 7),
    Sketcher.Constraint("PointOnObject", 0, 2, -1),
    Sketcher.Constraint("PointOnObject", 4, 2, -1),
    Sketcher.Constraint("Horizontal", 2, 2, 5, 2),
    Sketcher.Constraint("Equal", 2, 4),
    Sketcher.Constraint("DistanceY", 1, 1, 1, 2, Q("0.15 in")),
    Sketcher.Constraint("DistanceX", 0, 1, 0, 2, Q("1.504 in")),
    Sketcher.Constraint("DistanceX", -1, 1, 0, 2, 121.213),
    Sketcher.Constraint("DistanceX", -1, 1, 4, 2, 348.7886),
])
pocket3 = body.newObject("PartDesign::Pocket", "Pocket002")
pocket3.Profile = sketch4
pocket3.Length = Q("0.125 in")

# Sketch on XY plane
sketch5 = body.newObject("Sketcher::SketchObject", "Sketch004")
sketch5.AttachmentSupport = (doc.getObject("XY_Plane"), [""])
sketch5.MapMode = "FlatFace"
sketch5.AttachmentOffset = App.Placement(Vector(0, 0, 0.125 * 25.4), App.Rotation())
sketch5.addGeometry([
    Part.LineSegment(Vector(81.5, 0, 0), Vector(122.7, 0, 0)),  # 0
    Part.LineSegment(Vector(122.7, 0, 0), Vector(122.7, 4.4, 0)),  # 1
    Part.LineSegment(Vector(122.7, 4.4, 0), Vector(81.5, 4.4, 0)),  # 2
    Part.LineSegment(Vector(81.5, 4.4, 0), Vector(81.5, 0, 0)),  # 3
    Part.LineSegment(Vector(309.1, 4.4, 0), Vector(309.1, 0, 0)),  # 4
    Part.LineSegment(Vector(309.1, 0, 0), Vector(350.3, 0, 0)),  # 5
    Part.LineSegment(Vector(350.3, 0, 0), Vector(350.3, 4.4, 0)),  # 6
    Part.LineSegment(Vector(350.3, 4.4, 0), Vector(309.1, 4.4, 0)),  # 7
], False)
sketch5.addConstraint([
    Sketcher.Constraint("Coincident", 0, 2, 1, 1),
    Sketcher.Constraint("Coincident", 1, 2, 2, 1),
    Sketcher.Constraint("Coincident", 2, 2, 3, 1),
    Sketcher.Constraint("Coincident", 3, 2, 0, 1),
    Sketcher.Constraint("Coincident", 4, 2, 5, 1),
    Sketcher.Constraint("Coincident", 5, 2, 6, 1),
    Sketcher.Constraint("Coincident", 6, 2, 7, 1),
    Sketcher.Constraint("Coincident", 7, 2, 4, 1),
    Sketcher.Constraint("Horizontal", 0),
    Sketcher.Constraint("Vertical", 1),
    Sketcher.Constraint("Horizontal", 2),
    Sketcher.Constraint("Vertical", 3),
    Sketcher.Constraint("Vertical", 4),
    Sketcher.Constraint("Horizontal", 5),
    Sketcher.Constraint("Vertical", 6),
    Sketcher.Constraint("Horizontal", 7),
    Sketcher.Constraint("PointOnObject", 0, 2, -1),
    Sketcher.Constraint("PointOnObject", 4, 2, -1),
    Sketcher.Constraint("Horizontal", 2, 2, 6, 2),
    Sketcher.Constraint("Equal", 2, 5),
    Sketcher.Constraint("DistanceX", 0, 1, 0, 2, Q("1.625 in")),
    Sketcher.Constraint("DistanceY", 1, 1, 1, 2, Q("0.172 in")),
    Sketcher.Constraint("DistanceX", -1, 1, 0, 2, 122.7497),
    Sketcher.Constraint("DistanceX", -1, 1, 4, 2, 309.0503),
])
pocket4 = body.newObject("PartDesign::Pocket", "Pocket003")
pocket4.Profile = sketch5
pocket4.Length = Q("1 in")

doc.recompute()
